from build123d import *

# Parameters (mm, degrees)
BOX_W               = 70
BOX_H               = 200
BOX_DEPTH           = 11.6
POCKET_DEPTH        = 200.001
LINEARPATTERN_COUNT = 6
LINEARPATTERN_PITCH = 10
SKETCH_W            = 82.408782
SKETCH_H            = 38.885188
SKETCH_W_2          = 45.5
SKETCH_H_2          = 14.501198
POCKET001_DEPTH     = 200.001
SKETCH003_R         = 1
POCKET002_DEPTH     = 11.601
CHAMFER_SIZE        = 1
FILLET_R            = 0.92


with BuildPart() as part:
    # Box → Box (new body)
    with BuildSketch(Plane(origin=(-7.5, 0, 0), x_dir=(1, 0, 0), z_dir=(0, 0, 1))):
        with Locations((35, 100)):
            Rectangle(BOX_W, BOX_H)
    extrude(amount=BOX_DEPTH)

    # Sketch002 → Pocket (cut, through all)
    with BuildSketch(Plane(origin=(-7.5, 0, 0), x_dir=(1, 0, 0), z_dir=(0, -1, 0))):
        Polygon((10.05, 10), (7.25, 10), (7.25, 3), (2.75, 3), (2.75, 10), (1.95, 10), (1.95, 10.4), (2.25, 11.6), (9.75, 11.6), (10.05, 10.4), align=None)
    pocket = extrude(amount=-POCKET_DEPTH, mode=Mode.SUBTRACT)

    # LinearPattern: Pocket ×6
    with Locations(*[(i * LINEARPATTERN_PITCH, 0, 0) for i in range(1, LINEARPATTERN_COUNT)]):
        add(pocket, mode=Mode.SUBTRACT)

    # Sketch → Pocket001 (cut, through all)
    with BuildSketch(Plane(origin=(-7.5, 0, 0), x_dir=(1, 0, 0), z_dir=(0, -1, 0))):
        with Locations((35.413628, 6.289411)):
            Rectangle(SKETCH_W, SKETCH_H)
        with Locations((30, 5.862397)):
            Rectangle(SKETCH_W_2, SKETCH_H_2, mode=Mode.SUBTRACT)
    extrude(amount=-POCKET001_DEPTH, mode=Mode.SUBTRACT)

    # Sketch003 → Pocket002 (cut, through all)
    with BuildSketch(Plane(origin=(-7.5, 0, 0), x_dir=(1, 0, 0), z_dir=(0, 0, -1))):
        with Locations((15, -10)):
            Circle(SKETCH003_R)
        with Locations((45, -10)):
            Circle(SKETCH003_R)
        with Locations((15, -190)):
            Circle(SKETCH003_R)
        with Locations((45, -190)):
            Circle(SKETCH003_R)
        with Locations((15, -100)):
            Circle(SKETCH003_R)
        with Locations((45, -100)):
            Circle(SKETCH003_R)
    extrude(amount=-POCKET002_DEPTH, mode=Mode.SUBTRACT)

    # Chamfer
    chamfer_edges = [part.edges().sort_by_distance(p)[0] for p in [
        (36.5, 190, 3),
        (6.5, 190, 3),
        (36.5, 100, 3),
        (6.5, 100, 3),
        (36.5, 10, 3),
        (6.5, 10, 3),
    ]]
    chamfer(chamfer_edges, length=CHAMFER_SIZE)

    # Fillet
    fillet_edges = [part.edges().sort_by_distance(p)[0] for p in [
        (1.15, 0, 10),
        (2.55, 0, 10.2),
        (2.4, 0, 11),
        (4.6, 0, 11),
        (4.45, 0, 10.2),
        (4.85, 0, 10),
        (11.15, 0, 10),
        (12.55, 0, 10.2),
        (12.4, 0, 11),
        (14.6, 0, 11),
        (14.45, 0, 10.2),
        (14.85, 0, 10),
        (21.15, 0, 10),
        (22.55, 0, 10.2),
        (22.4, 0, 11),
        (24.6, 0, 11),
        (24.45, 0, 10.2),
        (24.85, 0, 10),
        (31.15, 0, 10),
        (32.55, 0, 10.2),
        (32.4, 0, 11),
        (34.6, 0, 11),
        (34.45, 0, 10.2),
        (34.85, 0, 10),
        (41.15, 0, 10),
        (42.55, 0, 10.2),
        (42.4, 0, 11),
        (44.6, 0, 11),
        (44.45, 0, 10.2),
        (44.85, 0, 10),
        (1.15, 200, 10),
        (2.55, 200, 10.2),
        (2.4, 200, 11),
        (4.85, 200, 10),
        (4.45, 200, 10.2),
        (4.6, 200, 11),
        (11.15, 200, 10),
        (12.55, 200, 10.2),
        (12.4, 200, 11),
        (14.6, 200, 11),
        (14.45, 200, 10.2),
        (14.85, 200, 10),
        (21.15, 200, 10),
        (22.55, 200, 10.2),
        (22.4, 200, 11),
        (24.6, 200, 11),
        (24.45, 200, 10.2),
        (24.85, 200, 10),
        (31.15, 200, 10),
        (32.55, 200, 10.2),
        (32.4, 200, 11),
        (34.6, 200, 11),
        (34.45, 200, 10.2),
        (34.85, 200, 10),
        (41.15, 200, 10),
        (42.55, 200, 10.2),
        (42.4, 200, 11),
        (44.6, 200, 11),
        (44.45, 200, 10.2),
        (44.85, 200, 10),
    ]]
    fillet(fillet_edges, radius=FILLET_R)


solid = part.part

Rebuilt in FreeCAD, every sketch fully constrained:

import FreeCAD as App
import Part
import Sketcher
Q = App.Units.Quantity


def edges_at(feature, points):
    """Names of the edges that pass closest to the given points."""
    edges = feature.Shape.Edges
    near = lambda p: min(range(len(edges)), key=lambda i: edges[i].distToShape(Part.Vertex(*p))[0])
    return sorted({f"Edge{near(p) + 1}" for p in points})


def add_polygon(sketch, points):
    """Adds a closed chain of lines whose ends are joined by coincident constraints."""
    first, n = sketch.GeometryCount, len(points)
    for a, b in zip(points, points[1:] + points[:1]):
        sketch.addGeometry(Part.LineSegment(App.Vector(*a, 0), App.Vector(*b, 0)), False)
    for i in range(n):
        sketch.addConstraint(Sketcher.Constraint("Coincident", first + i, 2, first + (i + 1) % n, 1))

doc = App.newDocument("Part")
body = doc.addObject("PartDesign::Body", "Body")

sketch1 = doc.addObject("Sketcher::SketchObject", "Sketch")
body.addObject(sketch1)
sketch1.AttachmentSupport = (doc.XY_Plane, [""])
sketch1.MapMode = "FlatFace"
add_polygon(sketch1, [(-8, 200), (-8, 0), (62, 0), (62, 200)])
sketch1.addConstraint(Sketcher.Constraint("Vertical", 0))
sketch1.addConstraint(Sketcher.Constraint("Horizontal", 1))
sketch1.addConstraint(Sketcher.Constraint("Vertical", 2))
sketch1.addConstraint(Sketcher.Constraint("Horizontal", 3))
sketch1.addConstraint(Sketcher.Constraint("PointOnObject", 0, 2, -1))
sketch1.addConstraint(Sketcher.Constraint("DistanceX", 1, 1, 1, 2, Q("70 mm")))
sketch1.addConstraint(Sketcher.Constraint("DistanceY", 0, 2, 0, 1, Q("200 mm")))
sketch1.addConstraint(Sketcher.Constraint("DistanceX", 0, 2, -1, 1, Q("7.5 mm")))
pad1 = doc.addObject("PartDesign::Pad", "Pad")
body.addObject(pad1)
pad1.Profile = sketch1
pad1.Length = 11.6

sketch2 = doc.addObject("Sketcher::SketchObject", "Sketch001")
body.addObject(sketch2)
sketch2.AttachmentSupport = (doc.XZ_Plane, [""])
sketch2.MapMode = "FlatFace"
add_polygon(sketch2, [(-0.25, 10), (2.55, 10), (2.55, 10.4), (2.25, 11.6), (-5.25, 11.6), (-5.55, 10.4), (-5.55, 10), (-4.75, 10), (-4.75, 3), (-0.25, 3)])
sketch2.addConstraint(Sketcher.Constraint("Horizontal", 0))
sketch2.addConstraint(Sketcher.Constraint("Vertical", 1))
sketch2.addConstraint(Sketcher.Constraint("Horizontal", 3))
sketch2.addConstraint(Sketcher.Constraint("Vertical", 5))
sketch2.addConstraint(Sketcher.Constraint("Horizontal", 6))
sketch2.addConstraint(Sketcher.Constraint("Vertical", 7))
sketch2.addConstraint(Sketcher.Constraint("Horizontal", 8))
sketch2.addConstraint(Sketcher.Constraint("Vertical", 9))
sketch2.addConstraint(Sketcher.Constraint("Horizontal", 1, 2, 4, 2))
sketch2.addConstraint(Sketcher.Constraint("Horizontal", 0, 2, 5, 2))
sketch2.addConstraint(Sketcher.Constraint("Equal", 2, 4))
sketch2.addConstraint(Sketcher.Constraint("DistanceY", 7, 2, 7, 1, Q("7 mm")))
sketch2.addConstraint(Sketcher.Constraint("DistanceX", 0, 1, 0, 2, Q("2.8 mm")))
sketch2.addConstraint(Sketcher.Constraint("DistanceX", 3, 2, 3, 1, Q("7.5 mm")))
sketch2.addConstraint(Sketcher.Constraint("DistanceX", 6, 1, 6, 2, Q("0.8 mm")))
sketch2.addConstraint(Sketcher.Constraint("DistanceX", 8, 1, 8, 2, Q("4.5 mm")))
sketch2.addConstraint(Sketcher.Constraint("DistanceY", 1, 1, 1, 2, Q("0.4 mm")))
sketch2.addConstraint(Sketcher.Constraint("DistanceY", -1, 1, 0, 2, Q("10 mm")))
sketch2.addConstraint(Sketcher.Constraint("DistanceY", -1, 1, 2, 2, Q("11.6 mm")))
sketch2.addConstraint(Sketcher.Constraint("DistanceX", -1, 1, 0, 2, Q("2.55 mm")))
pocket1 = doc.addObject("PartDesign::Pocket", "Pocket")
body.addObject(pocket1)
pocket1.Profile = sketch2
pocket1.Type = "ThroughAll"
doc.recompute()

linearpattern = doc.addObject("PartDesign::LinearPattern", "LinearPattern")
body.addObject(linearpattern)
linearpattern.Originals = [pocket1]
linearpattern.Direction = (doc.X_Axis, [""])
linearpattern.Mode = "offset"
linearpattern.Offset = 10
linearpattern.Occurrences = 6
body.Tip = linearpattern

sketch3 = doc.addObject("Sketcher::SketchObject", "Sketch002")
body.addObject(sketch3)
sketch3.AttachmentSupport = (doc.XZ_Plane, [""])
sketch3.MapMode = "FlatFace"
add_polygon(sketch3, [(-13, 26), (-13, -13), (69, -13), (69, 26)])
add_polygon(sketch3, [(45, -1), (0, -1), (0, 13), (45, 13)])
sketch3.addConstraint(Sketcher.Constraint("Vertical", 0))
sketch3.addConstraint(Sketcher.Constraint("Horizontal", 1))
sketch3.addConstraint(Sketcher.Constraint("Vertical", 2))
sketch3.addConstraint(Sketcher.Constraint("Horizontal", 3))
sketch3.addConstraint(Sketcher.Constraint("Horizontal", 4))
sketch3.addConstraint(Sketcher.Constraint("Vertical", 5))
sketch3.addConstraint(Sketcher.Constraint("Horizontal", 6))
sketch3.addConstraint(Sketcher.Constraint("Vertical", 7))
sketch3.addConstraint(Sketcher.Constraint("DistanceX", 4, 2, 4, 1, Q("45.5 mm")))
sketch3.addConstraint(Sketcher.Constraint("DistanceX", 4, 2, -1, 1, Q("0.25 mm")))
sketch3.addConstraint(Sketcher.Constraint("DistanceY", 4, 2, -1, 1, Q("1.388202 mm")))
sketch3.addConstraint(Sketcher.Constraint("DistanceX", 1, 1, 1, 2, Q("82.408782 mm")))
sketch3.addConstraint(Sketcher.Constraint("DistanceY", 0, 2, 0, 1, Q("38.885188 mm")))
sketch3.addConstraint(Sketcher.Constraint("DistanceY", 5, 1, 5, 2, Q("14.501198 mm")))
sketch3.addConstraint(Sketcher.Constraint("DistanceX", -1, 1, 1, 2, Q("69.118019 mm")))
sketch3.addConstraint(Sketcher.Constraint("DistanceY", 0, 2, 4, 2, Q("11.764981 mm")))
pocket2 = doc.addObject("PartDesign::Pocket", "Pocket001")
body.addObject(pocket2)
pocket2.Profile = sketch3
pocket2.Type = "ThroughAll"

sketch4 = doc.addObject("Sketcher::SketchObject", "Sketch003")
body.addObject(sketch4)
sketch4.AttachmentSupport = (doc.XY_Plane, [""])
sketch4.MapMode = "FlatFace"
sketch4.addGeometry(Part.Circle(App.Vector(7.5, 10, 0), App.Vector(0, 0, 1), 1), False)
sketch4.addGeometry(Part.Circle(App.Vector(37.5, 10, 0), App.Vector(0, 0, 1), 1), False)
sketch4.addGeometry(Part.Circle(App.Vector(7.5, 190, 0), App.Vector(0, 0, 1), 1), False)
sketch4.addGeometry(Part.Circle(App.Vector(37.5, 190, 0), App.Vector(0, 0, 1), 1), False)
sketch4.addGeometry(Part.Circle(App.Vector(7.5, 100, 0), App.Vector(0, 0, 1), 1), False)
sketch4.addGeometry(Part.Circle(App.Vector(37.5, 100, 0), App.Vector(0, 0, 1), 1), False)
sketch4.addConstraint(Sketcher.Constraint("Equal", 0, 1))
sketch4.addConstraint(Sketcher.Constraint("Equal", 1, 2))
sketch4.addConstraint(Sketcher.Constraint("Equal", 2, 3))
sketch4.addConstraint(Sketcher.Constraint("Equal", 3, 4))
sketch4.addConstraint(Sketcher.Constraint("Equal", 4, 5))
sketch4.addConstraint(Sketcher.Constraint("Horizontal", 0, 3, 1, 3))
sketch4.addConstraint(Sketcher.Constraint("Horizontal", 2, 3, 3, 3))
sketch4.addConstraint(Sketcher.Constraint("Horizontal", 4, 3, 5, 3))
sketch4.addConstraint(Sketcher.Constraint("Vertical", 0, 3, 2, 3))
sketch4.addConstraint(Sketcher.Constraint("Vertical", 1, 3, 3, 3))
sketch4.addConstraint(Sketcher.Constraint("Vertical", 2, 3, 4, 3))
sketch4.addConstraint(Sketcher.Constraint("Vertical", 3, 3, 5, 3))
sketch4.addConstraint(Sketcher.Constraint("Diameter", 0, Q("2 mm")))
sketch4.addConstraint(Sketcher.Constraint("DistanceY", -1, 1, 0, 3, Q("10 mm")))
sketch4.addConstraint(Sketcher.Constraint("DistanceY", -1, 1, 2, 3, Q("190 mm")))
sketch4.addConstraint(Sketcher.Constraint("DistanceY", -1, 1, 4, 3, Q("100 mm")))
sketch4.addConstraint(Sketcher.Constraint("DistanceX", 0, 3, 1, 3, Q("30 mm")))
sketch4.addConstraint(Sketcher.Constraint("DistanceX", -1, 1, 0, 3, Q("7.5 mm")))
pocket3 = doc.addObject("PartDesign::Pocket", "Pocket002")
body.addObject(pocket3)
pocket3.Profile = sketch4
pocket3.Type = "ThroughAll"
pocket3.Reversed = True
doc.recompute()

chamfer = doc.addObject("PartDesign::Chamfer", "Chamfer")
body.addObject(chamfer)
chamfer.Base = (pocket3, edges_at(pocket3, [
    (36.5, 190, 3),
    (6.5, 190, 3),
    (36.5, 100, 3),
    (6.5, 100, 3),
    (36.5, 10, 3),
    (6.5, 10, 3),
]))
chamfer.Size = 1
doc.recompute()

fillet = doc.addObject("PartDesign::Fillet", "Fillet")
body.addObject(fillet)
fillet.Base = (chamfer, edges_at(chamfer, [
    (1.15, 0, 10),
    (2.55, 0, 10.2),
    (2.4, 0, 11),
    (4.6, 0, 11),
    (4.45, 0, 10.2),
    (4.85, 0, 10),
    (11.15, 0, 10),
    (12.55, 0, 10.2),
    (12.4, 0, 11),
    (14.6, 0, 11),
    (14.45, 0, 10.2),
    (14.85, 0, 10),
    (21.15, 0, 10),
    (22.55, 0, 10.2),
    (22.4, 0, 11),
    (24.6, 0, 11),
    (24.45, 0, 10.2),
    (24.85, 0, 10),
    (31.15, 0, 10),
    (32.55, 0, 10.2),
    (32.4, 0, 11),
    (34.6, 0, 11),
    (34.45, 0, 10.2),
    (34.85, 0, 10),
    (41.15, 0, 10),
    (42.55, 0, 10.2),
    (42.4, 0, 11),
    (44.6, 0, 11),
    (44.45, 0, 10.2),
    (44.85, 0, 10),
    (1.15, 200, 10),
    (2.55, 200, 10.2),
    (2.4, 200, 11),
    (4.85, 200, 10),
    (4.45, 200, 10.2),
    (4.6, 200, 11),
    (11.15, 200, 10),
    (12.55, 200, 10.2),
    (12.4, 200, 11),
    (14.6, 200, 11),
    (14.45, 200, 10.2),
    (14.85, 200, 10),
    (21.15, 200, 10),
    (22.55, 200, 10.2),
    (22.4, 200, 11),
    (24.6, 200, 11),
    (24.45, 200, 10.2),
    (24.85, 200, 10),
    (31.15, 200, 10),
    (32.55, 200, 10.2),
    (32.4, 200, 11),
    (34.6, 200, 11),
    (34.45, 200, 10.2),
    (34.85, 200, 10),
    (41.15, 200, 10),
    (42.55, 200, 10.2),
    (42.4, 200, 11),
    (44.6, 200, 11),
    (44.45, 200, 10.2),
    (44.85, 200, 10),
]))
fillet.Radius = 0.92

doc.recompute()
